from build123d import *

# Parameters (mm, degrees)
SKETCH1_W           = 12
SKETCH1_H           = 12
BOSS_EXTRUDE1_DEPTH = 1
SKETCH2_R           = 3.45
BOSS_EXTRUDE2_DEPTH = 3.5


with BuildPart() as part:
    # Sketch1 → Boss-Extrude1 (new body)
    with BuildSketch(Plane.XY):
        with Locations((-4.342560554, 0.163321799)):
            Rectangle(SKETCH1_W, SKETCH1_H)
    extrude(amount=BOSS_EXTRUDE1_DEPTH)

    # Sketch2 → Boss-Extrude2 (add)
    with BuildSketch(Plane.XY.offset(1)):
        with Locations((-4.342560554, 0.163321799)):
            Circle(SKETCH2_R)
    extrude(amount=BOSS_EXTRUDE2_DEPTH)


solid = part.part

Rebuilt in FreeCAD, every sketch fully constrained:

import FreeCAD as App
import Part
import Sketcher


def add_polygon(sketch, points):
    """Adds a closed chain of lines whose ends are joined by coincident constraints."""
    first, n = sketch.GeometryCount, len(points)
    for a, b in zip(points, points[1:] + points[:1]):
        sketch.addGeometry(Part.LineSegment(App.Vector(*a, 0), App.Vector(*b, 0)), False)
    for i in range(n):
        sketch.addConstraint(Sketcher.Constraint("Coincident", first + i, 2, first + (i + 1) % n, 1))

doc = App.newDocument("Part")
params = doc.addObject("Spreadsheet::Sheet", "Params")
for row, (alias, value) in enumerate([
    ("sketch1_width", "12 mm"),
    ("pad1_length", "1 mm"),
    ("sketch2_diameter", "6.9 mm"),
    ("pad2_length", "3.5 mm"),
], start=1):
    params.set(f"A{row}", alias)
    params.set(f"B{row}", "=" + value)
    params.setAlias(f"B{row}", alias)

body = doc.addObject("PartDesign::Body", "Body")

# Sketch on XY plane
sketch1 = body.newObject("Sketcher::SketchObject", "Sketch")
sketch1.AttachmentSupport = (doc.getObject("XY_Plane"), [""])
sketch1.MapMode = "FlatFace"
add_polygon(sketch1, [(-10, 6), (-10, -6), (2, -6), (2, 6)])  # lines 0-3
sketch1.addConstraint(Sketcher.Constraint("Vertical", 0))
sketch1.addConstraint(Sketcher.Constraint("Horizontal", 1))
sketch1.addConstraint(Sketcher.Constraint("Vertical", 2))
sketch1.addConstraint(Sketcher.Constraint("Horizontal", 3))
sketch1.addConstraint(Sketcher.Constraint("Equal", 3, 0))
sketch1.addConstraint(Sketcher.Constraint("DistanceX", 1, 1, 1, 2, 12.0))
sketch1.addConstraint(Sketcher.Constraint("DistanceX", 0, 2, -1, 1, 10.342561))
sketch1.addConstraint(Sketcher.Constraint("DistanceY", 0, 2, -1, 1, 5.836678))
sketch1.setExpression("Constraints[9]", "Params.sketch1_width")
pad1 = body.newObject("PartDesign::Pad", "Pad")
pad1.Profile = sketch1
pad1.setExpression("Length", "Params.pad1_length")

# Sketch on XY plane
sketch2 = body.newObject("Sketcher::SketchObject", "Sketch001")
sketch2.AttachmentSupport = (doc.getObject("XY_Plane"), [""])
sketch2.MapMode = "FlatFace"
sketch2.AttachmentOffset = App.Placement(App.Vector(0, 0, 1), App.Rotation())
sketch2.addGeometry(Part.Circle(App.Vector(-4.3, 0.2, 0), App.Vector(0, 0, 1), 3.5), False)
sketch2.addConstraint(Sketcher.Constraint("Diameter", 0, 6.9))
sketch2.addConstraint(Sketcher.Constraint("DistanceX", 0, 3, -1, 1, 4.342561))
sketch2.addConstraint(Sketcher.Constraint("DistanceY", -1, 1, 0, 3, 0.163322))
sketch2.setExpression("Constraints[0]", "Params.sketch2_diameter")
pad2 = body.newObject("PartDesign::Pad", "Pad001")
pad2.Profile = sketch2
pad2.setExpression("Length", "Params.pad2_length")

doc.recompute()
